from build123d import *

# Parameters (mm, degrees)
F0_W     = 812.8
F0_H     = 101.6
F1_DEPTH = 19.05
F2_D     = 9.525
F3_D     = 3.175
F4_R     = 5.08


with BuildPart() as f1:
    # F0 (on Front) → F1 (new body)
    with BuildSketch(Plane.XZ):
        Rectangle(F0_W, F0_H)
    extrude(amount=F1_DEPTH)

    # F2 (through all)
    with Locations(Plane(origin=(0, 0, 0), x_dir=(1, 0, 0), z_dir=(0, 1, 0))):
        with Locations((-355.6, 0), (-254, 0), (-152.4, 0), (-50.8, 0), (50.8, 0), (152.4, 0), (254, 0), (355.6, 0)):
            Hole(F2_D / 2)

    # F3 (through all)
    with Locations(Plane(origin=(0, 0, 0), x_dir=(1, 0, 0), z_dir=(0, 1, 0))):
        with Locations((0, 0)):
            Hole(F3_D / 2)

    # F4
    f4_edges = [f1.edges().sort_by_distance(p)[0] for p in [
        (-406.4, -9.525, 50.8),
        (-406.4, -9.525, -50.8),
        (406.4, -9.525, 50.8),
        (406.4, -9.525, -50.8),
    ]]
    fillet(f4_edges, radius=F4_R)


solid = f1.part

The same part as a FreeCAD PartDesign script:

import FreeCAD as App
import Part
import Sketcher
from FreeCAD import Vector
Q = App.Units.Quantity


def edges_at(feature, points):
    """Names of the edges that pass closest to the given points."""
    edges = feature.Shape.Edges
    near = lambda p: min(range(len(edges)), key=lambda i: edges[i].distToShape(Part.Vertex(*p))[0])
    return sorted({f"Edge{near(p) + 1}" for p in points})

doc = App.newDocument("Part")
body = doc.addObject("PartDesign::Body", "Body")

sketch1 = doc.addObject("Sketcher::SketchObject", "Sketch")
body.addObject(sketch1)
sketch1.AttachmentSupport = (doc.XZ_Plane, [""])
sketch1.MapMode = "FlatFace"
sketch1.addGeometry([
    Part.LineSegment(Vector(-406, 51, 0), Vector(-406, -51, 0)),
    Part.LineSegment(Vector(-406, -51, 0), Vector(406, -51, 0)),
    Part.LineSegment(Vector(406, -51, 0), Vector(406, 51, 0)),
    Part.LineSegment(Vector(406, 51, 0), Vector(-406, 51, 0)),
], False)
sketch1.addConstraint([
    Sketcher.Constraint("Coincident", 0, 2, 1, 1),
    Sketcher.Constraint("Coincident", 1, 2, 2, 1),
    Sketcher.Constraint("Coincident", 2, 2, 3, 1),
    Sketcher.Constraint("Coincident", 3, 2, 0, 1),
    Sketcher.Constraint("Vertical", 0),
    Sketcher.Constraint("Horizontal", 1),
    Sketcher.Constraint("Vertical", 2),
    Sketcher.Constraint("Horizontal", 3),
    Sketcher.Constraint("Symmetric", 0, 2, 2, 2, -1, 1),
    Sketcher.Constraint("DistanceX", 1, 1, 1, 2, Q("32 in")),
    Sketcher.Constraint("DistanceY", 0, 2, 0, 1, Q("4 in")),
])
pad1 = doc.addObject("PartDesign::Pad", "Pad")
body.addObject(pad1)
pad1.Profile = sketch1
pad1.Length = Q("0.75 in")

sketch2 = doc.addObject("Sketcher::SketchObject", "Sketch001")
body.addObject(sketch2)
sketch2.AttachmentSupport = (doc.XZ_Plane, [""])
sketch2.MapMode = "FlatFace"
sketch2.addGeometry([
    Part.Circle(Vector(-355.6, 0, 0), Vector(0, 0, 1), 4.8),
    Part.Circle(Vector(-254, 0, 0), Vector(0, 0, 1), 4.8),
    Part.Circle(Vector(-152.4, 0, 0), Vector(0, 0, 1), 4.8),
    Part.Circle(Vector(-50.8, 0, 0), Vector(0, 0, 1), 4.8),
    Part.Circle(Vector(50.8, 0, 0), Vector(0, 0, 1), 4.8),
    Part.Circle(Vector(152.4, 0, 0), Vector(0, 0, 1), 4.8),
    Part.Circle(Vector(254, 0, 0), Vector(0, 0, 1), 4.8),
    Part.Circle(Vector(355.6, 0, 0), Vector(0, 0, 1), 4.8),
], False)
sketch2.addConstraint([
    Sketcher.Constraint("Equal", 0, 1),
    Sketcher.Constraint("Equal", 1, 2),
    Sketcher.Constraint("Equal", 2, 3),
    Sketcher.Constraint("Equal", 3, 4),
    Sketcher.Constraint("Equal", 4, 5),
    Sketcher.Constraint("Equal", 5, 6),
    Sketcher.Constraint("Equal", 6, 7),
    Sketcher.Constraint("Symmetric", 3, 3, 4, 3, -1, 1),
    Sketcher.Constraint("Symmetric", 2, 3, 5, 3, -1, 1),
    Sketcher.Constraint("Symmetric", 1, 3, 6, 3, -1, 1),
    Sketcher.Constraint("Symmetric", 0, 3, 7, 3, -1, 1),
    Sketcher.Constraint("PointOnObject", 0, 3, -1),
    Sketcher.Constraint("PointOnObject", 1, 3, -1),
    Sketcher.Constraint("PointOnObject", 2, 3, -1),
    Sketcher.Constraint("PointOnObject", 3, 3, -1),
    Sketcher.Constraint("Diameter", 0, Q("0.375 in")),
    Sketcher.Constraint("DistanceX", 0, 3, -1, 1, Q("14 in")),
    Sketcher.Constraint("DistanceX", 1, 3, -1, 1, Q("10 in")),
    Sketcher.Constraint("DistanceX", 2, 3, -1, 1, Q("6 in")),
    Sketcher.Constraint("DistanceX", 3, 3, -1, 1, Q("2 in")),
])
doc.recompute()
hole = doc.addObject("PartDesign::Hole", "Hole")
body.addObject(hole)
hole.Profile = sketch2
hole.ThreadType = "None"
hole.Diameter = Q("0.375 in")
hole.DepthType = "ThroughAll"
hole.Reversed = True

sketch3 = doc.addObject("Sketcher::SketchObject", "Sketch002")
body.addObject(sketch3)
sketch3.AttachmentSupport = (doc.XZ_Plane, [""])
sketch3.MapMode = "FlatFace"
sketch3.addGeometry(Part.Circle(Vector(0, 0, 0), Vector(0, 0, 1), 1.6), False)
sketch3.addConstraint([
    Sketcher.Constraint("Coincident", 0, 3, -1, 1),
    Sketcher.Constraint("Diameter", 0, Q("0.125 in")),
])
doc.recompute()
hole2 = doc.addObject("PartDesign::Hole", "Hole001")
body.addObject(hole2)
hole2.Profile = sketch3
hole2.ThreadType = "None"
hole2.Diameter = Q("0.125 in")
hole2.DepthType = "ThroughAll"
hole2.Reversed = True
doc.recompute()

fillet = doc.addObject("PartDesign::Fillet", "Fillet")
body.addObject(fillet)
fillet.Base = (hole2, edges_at(hole2, [
    (-406.4, -9.525, 50.8),
    (-406.4, -9.525, -50.8),
    (406.4, -9.525, 50.8),
    (406.4, -9.525, -50.8),
]))
fillet.Radius = Q("0.2 in")

doc.recompute()
